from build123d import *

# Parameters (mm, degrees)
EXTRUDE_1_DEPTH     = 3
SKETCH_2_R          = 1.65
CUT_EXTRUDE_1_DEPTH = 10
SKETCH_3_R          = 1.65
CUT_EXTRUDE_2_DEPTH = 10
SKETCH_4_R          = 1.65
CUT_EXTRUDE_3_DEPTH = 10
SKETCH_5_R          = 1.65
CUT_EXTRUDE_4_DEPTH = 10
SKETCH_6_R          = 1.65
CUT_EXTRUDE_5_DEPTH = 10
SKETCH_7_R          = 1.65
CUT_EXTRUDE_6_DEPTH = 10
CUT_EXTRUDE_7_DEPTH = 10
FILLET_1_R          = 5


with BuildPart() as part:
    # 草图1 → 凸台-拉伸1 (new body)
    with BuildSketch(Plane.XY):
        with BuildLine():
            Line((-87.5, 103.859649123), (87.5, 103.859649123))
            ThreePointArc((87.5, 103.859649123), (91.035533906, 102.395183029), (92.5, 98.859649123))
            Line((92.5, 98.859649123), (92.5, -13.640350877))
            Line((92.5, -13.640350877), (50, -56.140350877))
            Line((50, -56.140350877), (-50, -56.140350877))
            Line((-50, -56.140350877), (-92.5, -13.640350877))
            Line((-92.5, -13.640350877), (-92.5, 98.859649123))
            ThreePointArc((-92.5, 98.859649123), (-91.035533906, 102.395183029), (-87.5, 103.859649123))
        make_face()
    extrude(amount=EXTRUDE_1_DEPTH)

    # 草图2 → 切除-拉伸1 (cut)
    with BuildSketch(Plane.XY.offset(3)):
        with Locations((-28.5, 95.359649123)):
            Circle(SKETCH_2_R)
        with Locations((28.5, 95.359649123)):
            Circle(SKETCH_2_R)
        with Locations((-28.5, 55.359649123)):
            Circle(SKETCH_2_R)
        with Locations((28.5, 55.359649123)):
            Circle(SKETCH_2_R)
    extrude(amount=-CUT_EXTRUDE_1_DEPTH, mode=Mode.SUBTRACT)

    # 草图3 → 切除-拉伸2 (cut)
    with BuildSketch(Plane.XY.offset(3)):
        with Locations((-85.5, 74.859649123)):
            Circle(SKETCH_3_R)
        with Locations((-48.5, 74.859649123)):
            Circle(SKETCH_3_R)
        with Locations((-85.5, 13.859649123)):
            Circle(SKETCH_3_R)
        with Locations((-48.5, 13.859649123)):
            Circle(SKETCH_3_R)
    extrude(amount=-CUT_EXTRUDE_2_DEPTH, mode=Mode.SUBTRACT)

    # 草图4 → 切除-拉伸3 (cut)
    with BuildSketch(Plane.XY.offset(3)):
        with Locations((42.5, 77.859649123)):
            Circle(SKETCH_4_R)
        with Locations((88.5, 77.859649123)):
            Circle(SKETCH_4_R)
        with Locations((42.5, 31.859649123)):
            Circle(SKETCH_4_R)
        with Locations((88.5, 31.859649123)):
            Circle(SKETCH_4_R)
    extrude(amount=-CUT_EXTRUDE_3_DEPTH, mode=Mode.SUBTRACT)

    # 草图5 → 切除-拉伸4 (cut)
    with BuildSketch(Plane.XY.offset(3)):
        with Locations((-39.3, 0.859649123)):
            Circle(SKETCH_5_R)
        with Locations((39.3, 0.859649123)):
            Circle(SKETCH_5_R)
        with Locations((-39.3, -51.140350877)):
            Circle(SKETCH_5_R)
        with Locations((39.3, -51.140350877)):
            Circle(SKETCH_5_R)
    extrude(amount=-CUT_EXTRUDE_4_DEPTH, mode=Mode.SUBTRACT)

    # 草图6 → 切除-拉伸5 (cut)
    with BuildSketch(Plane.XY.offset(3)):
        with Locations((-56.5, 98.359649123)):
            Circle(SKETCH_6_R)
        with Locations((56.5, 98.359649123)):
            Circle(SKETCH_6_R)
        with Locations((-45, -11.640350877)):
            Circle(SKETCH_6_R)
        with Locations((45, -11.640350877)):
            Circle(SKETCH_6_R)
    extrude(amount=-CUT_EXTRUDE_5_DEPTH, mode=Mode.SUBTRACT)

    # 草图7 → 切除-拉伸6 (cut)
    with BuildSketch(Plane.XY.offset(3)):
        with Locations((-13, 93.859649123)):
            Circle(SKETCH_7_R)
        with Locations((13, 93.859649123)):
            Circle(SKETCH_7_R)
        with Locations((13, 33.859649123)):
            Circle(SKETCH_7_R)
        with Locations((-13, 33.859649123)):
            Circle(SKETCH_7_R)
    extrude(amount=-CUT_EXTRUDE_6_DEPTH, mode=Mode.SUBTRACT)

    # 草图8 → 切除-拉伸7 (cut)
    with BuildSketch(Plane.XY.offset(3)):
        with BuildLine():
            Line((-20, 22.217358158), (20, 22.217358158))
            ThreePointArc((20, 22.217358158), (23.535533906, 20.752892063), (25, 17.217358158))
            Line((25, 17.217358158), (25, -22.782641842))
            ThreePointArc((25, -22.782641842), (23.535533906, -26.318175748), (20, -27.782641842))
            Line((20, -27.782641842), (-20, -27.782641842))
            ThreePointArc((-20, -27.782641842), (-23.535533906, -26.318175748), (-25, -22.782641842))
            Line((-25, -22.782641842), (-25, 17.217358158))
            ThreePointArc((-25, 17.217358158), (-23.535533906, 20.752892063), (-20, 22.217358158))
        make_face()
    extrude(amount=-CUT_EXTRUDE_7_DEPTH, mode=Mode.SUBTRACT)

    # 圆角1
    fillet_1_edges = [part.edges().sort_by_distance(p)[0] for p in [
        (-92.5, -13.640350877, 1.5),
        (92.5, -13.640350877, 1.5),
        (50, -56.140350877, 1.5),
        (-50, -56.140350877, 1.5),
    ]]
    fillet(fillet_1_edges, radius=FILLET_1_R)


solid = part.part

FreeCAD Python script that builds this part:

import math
import FreeCAD as App
import Part
import Sketcher
Q = App.Units.Quantity


def edges_at(feature, points):
    """Names of the edges that pass closest to the given points."""
    edges = feature.Shape.Edges
    near = lambda p: min(range(len(edges)), key=lambda i: edges[i].distToShape(Part.Vertex(*p))[0])
    return sorted({f"Edge{near(p) + 1}" for p in points})

doc = App.newDocument("Part")
body = doc.addObject("PartDesign::Body", "Body")

# Sketch on XY plane
sketch1 = body.newObject("Sketcher::SketchObject", "Sketch")
sketch1.AttachmentSupport = (doc.getObject("XY_Plane"), [""])
sketch1.MapMode = "FlatFace"
sketch1.addGeometry([
    Part.LineSegment(App.Vector(88, 104, 0), App.Vector(-88, 104, 0)),  # 0
    Part.ArcOfCircle(Part.Circle(App.Vector(-88, 99, 0), App.Vector(0, 0, 1), 5), math.radians(90), math.radians(180)),  # 1
    Part.LineSegment(App.Vector(-92, 99, 0), App.Vector(-92, -14, 0)),  # 2
    Part.LineSegment(App.Vector(-92, -14, 0), App.Vector(-50, -56, 0)),  # 3
    Part.LineSegment(App.Vector(-50, -56, 0), App.Vector(50, -56, 0)),  # 4
    Part.LineSegment(App.Vector(50, -56, 0), App.Vector(92, -14, 0)),  # 5
    Part.LineSegment(App.Vector(92, -14, 0), App.Vector(92, 99, 0)),  # 6
    Part.ArcOfCircle(Part.Circle(App.Vector(88, 99, 0), App.Vector(0, 0, 1), 5), math.radians(0), math.radians(90)),  # 7
], False)
sketch1.addConstraint([
    Sketcher.Constraint("Tangent", 0, 2, 1, 1),
    Sketcher.Constraint("Tangent", 1, 2, 2, 1),
    Sketcher.Constraint("Coincident", 2, 2, 3, 1),
    Sketcher.Constraint("Coincident", 3, 2, 4, 1),
    Sketcher.Constraint("Coincident", 4, 2, 5, 1),
    Sketcher.Constraint("Coincident", 5, 2, 6, 1),
    Sketcher.Constraint("Tangent", 6, 2, 7, 1),
    Sketcher.Constraint("Tangent", 7, 2, 0, 1),
    Sketcher.Constraint("Horizontal", 0),
    Sketcher.Constraint("Vertical", 2),
    Sketcher.Constraint("Horizontal", 4),
    Sketcher.Constraint("Vertical", 6),
    Sketcher.Constraint("Equal", 1, 7),
    Sketcher.Constraint("Symmetric", 2, 2, 5, 2, -2),
    Sketcher.Constraint("Perpendicular", 3, 5),
    Sketcher.Constraint("Equal", 3, 5),
    Sketcher.Constraint("Radius", 1, Q("5 mm")),
    Sketcher.Constraint("DistanceX", 0, 2, 0, 1, Q("175 mm")),
    Sketcher.Constraint("DistanceX", 4, 1, 4, 2, Q("100 mm")),
    Sketcher.Constraint("DistanceY", 2, 2, 2, 1, Q("112.5 mm")),
    Sketcher.Constraint("DistanceY", -1, 1, 1, 3, Q("98.859649 mm")),
])
pad1 = body.newObject("PartDesign::Pad", "Pad")
pad1.Profile = sketch1
pad1.Length = 3

# Sketch on XY plane
sketch2 = body.newObject("Sketcher::SketchObject", "Sketch001")
sketch2.AttachmentSupport = (doc.getObject("XY_Plane"), [""])
sketch2.MapMode = "FlatFace"
sketch2.AttachmentOffset = App.Placement(App.Vector(0, 0, 3), App.Rotation())
sketch2.addGeometry([
    Part.Circle(App.Vector(-28.5, 95.4, 0), App.Vector(0, 0, 1), 1.6),
    Part.Circle(App.Vector(28.5, 95.4, 0), App.Vector(0, 0, 1), 1.6),
    Part.Circle(App.Vector(-28.5, 55.4, 0), App.Vector(0, 0, 1), 1.6),
    Part.Circle(App.Vector(28.5, 55.4, 0), App.Vector(0, 0, 1), 1.6),
], False)
sketch2.addConstraint([
    Sketcher.Constraint("Equal", 0, 1),
    Sketcher.Constraint("Equal", 1, 2),
    Sketcher.Constraint("Equal", 2, 3),
    Sketcher.Constraint("Symmetric", 0, 3, 1, 3, -2),
    Sketcher.Constraint("Symmetric", 2, 3, 3, 3, -2),
    Sketcher.Constraint("Vertical", 0, 3, 2, 3),
    Sketcher.Constraint("Diameter", 0, Q("3.3 mm")),
    Sketcher.Constraint("DistanceX", 0, 3, 1, 3, Q("57 mm")),
    Sketcher.Constraint("DistanceY", 2, 3, 0, 3, Q("40 mm")),
    Sketcher.Constraint("DistanceY", -1, 1, 0, 3, Q("95.359649 mm")),
])
pocket1 = body.newObject("PartDesign::Pocket", "Pocket")
pocket1.Profile = sketch2
pocket1.Length = 10

# Sketch on XY plane
sketch3 = body.newObject("Sketcher::SketchObject", "Sketch002")
sketch3.AttachmentSupport = (doc.getObject("XY_Plane"), [""])
sketch3.MapMode = "FlatFace"
sketch3.AttachmentOffset = App.Placement(App.Vector(0, 0, 3), App.Rotation())
sketch3.addGeometry([
    Part.Circle(App.Vector(-85.5, 74.9, 0), App.Vector(0, 0, 1), 1.6),
    Part.Circle(App.Vector(-48.5, 74.9, 0), App.Vector(0, 0, 1), 1.6),
    Part.Circle(App.Vector(-85.5, 13.9, 0), App.Vector(0, 0, 1), 1.6),
    Part.Circle(App.Vector(-48.5, 13.9, 0), App.Vector(0, 0, 1), 1.6),
], False)
sketch3.addConstraint([
    Sketcher.Constraint("Equal", 0, 1),
    Sketcher.Constraint("Equal", 1, 2),
    Sketcher.Constraint("Equal", 2, 3),
    Sketcher.Constraint("Horizontal", 0, 3, 1, 3),
    Sketcher.Constraint("Horizontal", 2, 3, 3, 3),
    Sketcher.Constraint("Vertical", 0, 3, 2, 3),
    Sketcher.Constraint("Vertical", 1, 3, 3, 3),
    Sketcher.Constraint("Diameter", 0, Q("3.3 mm")),
    Sketcher.Constraint("DistanceX", 0, 3, 1, 3, Q("37 mm")),
    Sketcher.Constraint("DistanceY", 2, 3, 0, 3, Q("61 mm")),
    Sketcher.Constraint("DistanceX", 0, 3, -1, 1, Q("85.5 mm")),
    Sketcher.Constraint("DistanceY", -1, 1, 0, 3, Q("74.859649 mm")),
])
pocket2 = body.newObject("PartDesign::Pocket", "Pocket001")
pocket2.Profile = sketch3
pocket2.Length = 10

# Sketch on XY plane
sketch4 = body.newObject("Sketcher::SketchObject", "Sketch003")
sketch4.AttachmentSupport = (doc.getObject("XY_Plane"), [""])
sketch4.MapMode = "FlatFace"
sketch4.AttachmentOffset = App.Placement(App.Vector(0, 0, 3), App.Rotation())
sketch4.addGeometry([
    Part.Circle(App.Vector(42.5, 77.9, 0), App.Vector(0, 0, 1), 1.6),
    Part.Circle(App.Vector(88.5, 77.9, 0), App.Vector(0, 0, 1), 1.6),
    Part.Circle(App.Vector(42.5, 31.9, 0), App.Vector(0, 0, 1), 1.6),
    Part.Circle(App.Vector(88.5, 31.9, 0), App.Vector(0, 0, 1), 1.6),
], False)
sketch4.addConstraint([
    Sketcher.Constraint("Equal", 0, 1),
    Sketcher.Constraint("Equal", 1, 2),
    Sketcher.Constraint("Equal", 2, 3),
    Sketcher.Constraint("Horizontal", 0, 3, 1, 3),
    Sketcher.Constraint("Horizontal", 2, 3, 3, 3),
    Sketcher.Constraint("Vertical", 0, 3, 2, 3),
    Sketcher.Constraint("Vertical", 1, 3, 3, 3),
    Sketcher.Constraint("Diameter", 0, Q("3.3 mm")),
    Sketcher.Constraint("DistanceX", 0, 3, 1, 3, Q("46 mm")),
    Sketcher.Constraint("DistanceY", 2, 3, 0, 3, Q("46 mm")),
    Sketcher.Constraint("DistanceX", -1, 1, 0, 3, Q("42.5 mm")),
    Sketcher.Constraint("DistanceY", -1, 1, 0, 3, Q("77.859649 mm")),
])
pocket3 = body.newObject("PartDesign::Pocket", "Pocket002")
pocket3.Profile = sketch4
pocket3.Length = 10

# Sketch on XY plane
sketch5 = body.newObject("Sketcher::SketchObject", "Sketch004")
sketch5.AttachmentSupport = (doc.getObject("XY_Plane"), [""])
sketch5.MapMode = "FlatFace"
sketch5.AttachmentOffset = App.Placement(App.Vector(0, 0, 3), App.Rotation())
sketch5.addGeometry([
    Part.Circle(App.Vector(-39.3, 0.9, 0), App.Vector(0, 0, 1), 1.6),
    Part.Circle(App.Vector(39.3, 0.9, 0), App.Vector(0, 0, 1), 1.6),
    Part.Circle(App.Vector(-39.3, -51.1, 0), App.Vector(0, 0, 1), 1.6),
    Part.Circle(App.Vector(39.3, -51.1, 0), App.Vector(0, 0, 1), 1.6),
], False)
sketch5.addConstraint([
    Sketcher.Constraint("Equal", 0, 1),
    Sketcher.Constraint("Equal", 1, 2),
    Sketcher.Constraint("Equal", 2, 3),
    Sketcher.Constraint("Symmetric", 0, 3, 1, 3, -2),
    Sketcher.Constraint("Symmetric", 2, 3, 3, 3, -2),
    Sketcher.Constraint("Vertical", 0, 3, 2, 3),
    Sketcher.Constraint("Diameter", 0, Q("3.3 mm")),
    Sketcher.Constraint("DistanceY", 2, 3, 0, 3, Q("52 mm")),
    Sketcher.Constraint("DistanceX", 0, 3, -1, 1, Q("39.3 mm")),
    Sketcher.Constraint("DistanceY", -1, 1, 0, 3, Q("0.859649 mm")),
])
pocket4 = body.newObject("PartDesign::Pocket", "Pocket003")
pocket4.Profile = sketch5
pocket4.Length = 10

# Sketch on XY plane
sketch6 = body.newObject("Sketcher::SketchObject", "Sketch005")
sketch6.AttachmentSupport = (doc.getObject("XY_Plane"), [""])
sketch6.MapMode = "FlatFace"
sketch6.AttachmentOffset = App.Placement(App.Vector(0, 0, 3), App.Rotation())
sketch6.addGeometry([
    Part.Circle(App.Vector(-56.5, 98.4, 0), App.Vector(0, 0, 1), 1.6),
    Part.Circle(App.Vector(56.5, 98.4, 0), App.Vector(0, 0, 1), 1.6),
    Part.Circle(App.Vector(-45, -11.6, 0), App.Vector(0, 0, 1), 1.6),
    Part.Circle(App.Vector(45, -11.6, 0), App.Vector(0, 0, 1), 1.6),
], False)
sketch6.addConstraint([
    Sketcher.Constraint("Equal", 0, 1),
    Sketcher.Constraint("Equal", 1, 2),
    Sketcher.Constraint("Equal", 2, 3),
    Sketcher.Constraint("Symmetric", 0, 3, 1, 3, -2),
    Sketcher.Constraint("Symmetric", 2, 3, 3, 3, -2),
    Sketcher.Constraint("Diameter", 0, Q("3.3 mm")),
    Sketcher.Constraint("DistanceX", 2, 3, -1, 1, Q("45 mm")),
    Sketcher.Constraint("DistanceX", 0, 3, 1, 3, Q("113 mm")),
    Sketcher.Constraint("DistanceY", 2, 3, 0, 3, Q("110 mm")),
    Sketcher.Constraint("DistanceY", -1, 1, 0, 3, Q("98.359649 mm")),
])
pocket5 = body.newObject("PartDesign::Pocket", "Pocket004")
pocket5.Profile = sketch6
pocket5.Length = 10

# Sketch on XY plane
sketch7 = body.newObject("Sketcher::SketchObject", "Sketch006")
sketch7.AttachmentSupport = (doc.getObject("XY_Plane"), [""])
sketch7.MapMode = "FlatFace"
sketch7.AttachmentOffset = App.Placement(App.Vector(0, 0, 3), App.Rotation())
sketch7.addGeometry([
    Part.Circle(App.Vector(-13, 93.9, 0), App.Vector(0, 0, 1), 1.6),
    Part.Circle(App.Vector(13, 93.9, 0), App.Vector(0, 0, 1), 1.6),
    Part.Circle(App.Vector(13, 33.9, 0), App.Vector(0, 0, 1), 1.6),
    Part.Circle(App.Vector(-13, 33.9, 0), App.Vector(0, 0, 1), 1.6),
], False)
sketch7.addConstraint([
    Sketcher.Constraint("Equal", 0, 1),
    Sketcher.Constraint("Equal", 1, 2),
    Sketcher.Constraint("Equal", 2, 3),
    Sketcher.Constraint("Symmetric", 0, 3, 1, 3, -2),
    Sketcher.Constraint("Symmetric", 2, 3, 3, 3, -2),
    Sketcher.Constraint("Vertical", 1, 3, 2, 3),
    Sketcher.Constraint("Diameter", 0, Q("3.3 mm")),
    Sketcher.Constraint("DistanceX", 0, 3, -1, 1, Q("13 mm")),
    Sketcher.Constraint("DistanceY", 2, 3, 1, 3, Q("60 mm")),
    Sketcher.Constraint("DistanceY", -1, 1, 0, 3, Q("93.859649 mm")),
])
pocket6 = body.newObject("PartDesign::Pocket", "Pocket005")
pocket6.Profile = sketch7
pocket6.Length = 10

# Sketch on XY plane
sketch8 = body.newObject("Sketcher::SketchObject", "Sketch007")
sketch8.AttachmentSupport = (doc.getObject("XY_Plane"), [""])
sketch8.MapMode = "FlatFace"
sketch8.AttachmentOffset = App.Placement(App.Vector(0, 0, 3), App.Rotation())
sketch8.addGeometry([
    Part.LineSegment(App.Vector(20, 22, 0), App.Vector(-20, 22, 0)),  # 0
    Part.ArcOfCircle(Part.Circle(App.Vector(-20, 17, 0), App.Vector(0, 0, 1), 5), math.radians(90), math.radians(180)),  # 1
    Part.LineSegment(App.Vector(-25, 17, 0), App.Vector(-25, -23, 0)),  # 2
    Part.ArcOfCircle(Part.Circle(App.Vector(-20, -23, 0), App.Vector(0, 0, 1), 5), math.radians(180), math.radians(270)),  # 3
    Part.LineSegment(App.Vector(-20, -28, 0), App.Vector(20, -28, 0)),  # 4
    Part.ArcOfCircle(Part.Circle(App.Vector(20, -23, 0), App.Vector(0, 0, 1), 5), math.radians(-90), math.radians(0)),  # 5
    Part.LineSegment(App.Vector(25, -23, 0), App.Vector(25, 17, 0)),  # 6
    Part.ArcOfCircle(Part.Circle(App.Vector(20, 17, 0), App.Vector(0, 0, 1), 5), math.radians(0), math.radians(90)),  # 7
], False)
sketch8.addConstraint([
    Sketcher.Constraint("Tangent", 0, 2, 1, 1),
    Sketcher.Constraint("Tangent", 1, 2, 2, 1),
    Sketcher.Constraint("Tangent", 2, 2, 3, 1),
    Sketcher.Constraint("Tangent", 3, 2, 4, 1),
    Sketcher.Constraint("Tangent", 4, 2, 5, 1),
    Sketcher.Constraint("Tangent", 5, 2, 6, 1),
    Sketcher.Constraint("Tangent", 6, 2, 7, 1),
    Sketcher.Constraint("Tangent", 7, 2, 0, 1),
    Sketcher.Constraint("Horizontal", 0),
    Sketcher.Constraint("Vertical", 2),
    Sketcher.Constraint("Horizontal", 4),
    Sketcher.Constraint("Vertical", 6),
    Sketcher.Constraint("Equal", 1, 3),
    Sketcher.Constraint("Equal", 3, 5),
    Sketcher.Constraint("Equal", 5, 7),
    Sketcher.Constraint("Equal", 4, 2),
    Sketcher.Constraint("Radius", 1, Q("5 mm")),
    Sketcher.Constraint("DistanceX", 0, 2, 0, 1, Q("40 mm")),
    Sketcher.Constraint("DistanceX", 1, 3, -1, 1, Q("20 mm")),
    Sketcher.Constraint("DistanceY", -1, 1, 1, 3, Q("17.217358 mm")),
])
pocket7 = body.newObject("PartDesign::Pocket", "Pocket006")
pocket7.Profile = sketch8
pocket7.Length = 10
doc.recompute()

fillet = body.newObject("PartDesign::Fillet", "Fillet")
fillet.Base = (pocket7, edges_at(pocket7, [
    (-92.5, -13.64, 1.5),
    (92.5, -13.64, 1.5),
    (50, -56.14, 1.5),
    (-50, -56.14, 1.5),
]))
fillet.Radius = 5

doc.recompute()
